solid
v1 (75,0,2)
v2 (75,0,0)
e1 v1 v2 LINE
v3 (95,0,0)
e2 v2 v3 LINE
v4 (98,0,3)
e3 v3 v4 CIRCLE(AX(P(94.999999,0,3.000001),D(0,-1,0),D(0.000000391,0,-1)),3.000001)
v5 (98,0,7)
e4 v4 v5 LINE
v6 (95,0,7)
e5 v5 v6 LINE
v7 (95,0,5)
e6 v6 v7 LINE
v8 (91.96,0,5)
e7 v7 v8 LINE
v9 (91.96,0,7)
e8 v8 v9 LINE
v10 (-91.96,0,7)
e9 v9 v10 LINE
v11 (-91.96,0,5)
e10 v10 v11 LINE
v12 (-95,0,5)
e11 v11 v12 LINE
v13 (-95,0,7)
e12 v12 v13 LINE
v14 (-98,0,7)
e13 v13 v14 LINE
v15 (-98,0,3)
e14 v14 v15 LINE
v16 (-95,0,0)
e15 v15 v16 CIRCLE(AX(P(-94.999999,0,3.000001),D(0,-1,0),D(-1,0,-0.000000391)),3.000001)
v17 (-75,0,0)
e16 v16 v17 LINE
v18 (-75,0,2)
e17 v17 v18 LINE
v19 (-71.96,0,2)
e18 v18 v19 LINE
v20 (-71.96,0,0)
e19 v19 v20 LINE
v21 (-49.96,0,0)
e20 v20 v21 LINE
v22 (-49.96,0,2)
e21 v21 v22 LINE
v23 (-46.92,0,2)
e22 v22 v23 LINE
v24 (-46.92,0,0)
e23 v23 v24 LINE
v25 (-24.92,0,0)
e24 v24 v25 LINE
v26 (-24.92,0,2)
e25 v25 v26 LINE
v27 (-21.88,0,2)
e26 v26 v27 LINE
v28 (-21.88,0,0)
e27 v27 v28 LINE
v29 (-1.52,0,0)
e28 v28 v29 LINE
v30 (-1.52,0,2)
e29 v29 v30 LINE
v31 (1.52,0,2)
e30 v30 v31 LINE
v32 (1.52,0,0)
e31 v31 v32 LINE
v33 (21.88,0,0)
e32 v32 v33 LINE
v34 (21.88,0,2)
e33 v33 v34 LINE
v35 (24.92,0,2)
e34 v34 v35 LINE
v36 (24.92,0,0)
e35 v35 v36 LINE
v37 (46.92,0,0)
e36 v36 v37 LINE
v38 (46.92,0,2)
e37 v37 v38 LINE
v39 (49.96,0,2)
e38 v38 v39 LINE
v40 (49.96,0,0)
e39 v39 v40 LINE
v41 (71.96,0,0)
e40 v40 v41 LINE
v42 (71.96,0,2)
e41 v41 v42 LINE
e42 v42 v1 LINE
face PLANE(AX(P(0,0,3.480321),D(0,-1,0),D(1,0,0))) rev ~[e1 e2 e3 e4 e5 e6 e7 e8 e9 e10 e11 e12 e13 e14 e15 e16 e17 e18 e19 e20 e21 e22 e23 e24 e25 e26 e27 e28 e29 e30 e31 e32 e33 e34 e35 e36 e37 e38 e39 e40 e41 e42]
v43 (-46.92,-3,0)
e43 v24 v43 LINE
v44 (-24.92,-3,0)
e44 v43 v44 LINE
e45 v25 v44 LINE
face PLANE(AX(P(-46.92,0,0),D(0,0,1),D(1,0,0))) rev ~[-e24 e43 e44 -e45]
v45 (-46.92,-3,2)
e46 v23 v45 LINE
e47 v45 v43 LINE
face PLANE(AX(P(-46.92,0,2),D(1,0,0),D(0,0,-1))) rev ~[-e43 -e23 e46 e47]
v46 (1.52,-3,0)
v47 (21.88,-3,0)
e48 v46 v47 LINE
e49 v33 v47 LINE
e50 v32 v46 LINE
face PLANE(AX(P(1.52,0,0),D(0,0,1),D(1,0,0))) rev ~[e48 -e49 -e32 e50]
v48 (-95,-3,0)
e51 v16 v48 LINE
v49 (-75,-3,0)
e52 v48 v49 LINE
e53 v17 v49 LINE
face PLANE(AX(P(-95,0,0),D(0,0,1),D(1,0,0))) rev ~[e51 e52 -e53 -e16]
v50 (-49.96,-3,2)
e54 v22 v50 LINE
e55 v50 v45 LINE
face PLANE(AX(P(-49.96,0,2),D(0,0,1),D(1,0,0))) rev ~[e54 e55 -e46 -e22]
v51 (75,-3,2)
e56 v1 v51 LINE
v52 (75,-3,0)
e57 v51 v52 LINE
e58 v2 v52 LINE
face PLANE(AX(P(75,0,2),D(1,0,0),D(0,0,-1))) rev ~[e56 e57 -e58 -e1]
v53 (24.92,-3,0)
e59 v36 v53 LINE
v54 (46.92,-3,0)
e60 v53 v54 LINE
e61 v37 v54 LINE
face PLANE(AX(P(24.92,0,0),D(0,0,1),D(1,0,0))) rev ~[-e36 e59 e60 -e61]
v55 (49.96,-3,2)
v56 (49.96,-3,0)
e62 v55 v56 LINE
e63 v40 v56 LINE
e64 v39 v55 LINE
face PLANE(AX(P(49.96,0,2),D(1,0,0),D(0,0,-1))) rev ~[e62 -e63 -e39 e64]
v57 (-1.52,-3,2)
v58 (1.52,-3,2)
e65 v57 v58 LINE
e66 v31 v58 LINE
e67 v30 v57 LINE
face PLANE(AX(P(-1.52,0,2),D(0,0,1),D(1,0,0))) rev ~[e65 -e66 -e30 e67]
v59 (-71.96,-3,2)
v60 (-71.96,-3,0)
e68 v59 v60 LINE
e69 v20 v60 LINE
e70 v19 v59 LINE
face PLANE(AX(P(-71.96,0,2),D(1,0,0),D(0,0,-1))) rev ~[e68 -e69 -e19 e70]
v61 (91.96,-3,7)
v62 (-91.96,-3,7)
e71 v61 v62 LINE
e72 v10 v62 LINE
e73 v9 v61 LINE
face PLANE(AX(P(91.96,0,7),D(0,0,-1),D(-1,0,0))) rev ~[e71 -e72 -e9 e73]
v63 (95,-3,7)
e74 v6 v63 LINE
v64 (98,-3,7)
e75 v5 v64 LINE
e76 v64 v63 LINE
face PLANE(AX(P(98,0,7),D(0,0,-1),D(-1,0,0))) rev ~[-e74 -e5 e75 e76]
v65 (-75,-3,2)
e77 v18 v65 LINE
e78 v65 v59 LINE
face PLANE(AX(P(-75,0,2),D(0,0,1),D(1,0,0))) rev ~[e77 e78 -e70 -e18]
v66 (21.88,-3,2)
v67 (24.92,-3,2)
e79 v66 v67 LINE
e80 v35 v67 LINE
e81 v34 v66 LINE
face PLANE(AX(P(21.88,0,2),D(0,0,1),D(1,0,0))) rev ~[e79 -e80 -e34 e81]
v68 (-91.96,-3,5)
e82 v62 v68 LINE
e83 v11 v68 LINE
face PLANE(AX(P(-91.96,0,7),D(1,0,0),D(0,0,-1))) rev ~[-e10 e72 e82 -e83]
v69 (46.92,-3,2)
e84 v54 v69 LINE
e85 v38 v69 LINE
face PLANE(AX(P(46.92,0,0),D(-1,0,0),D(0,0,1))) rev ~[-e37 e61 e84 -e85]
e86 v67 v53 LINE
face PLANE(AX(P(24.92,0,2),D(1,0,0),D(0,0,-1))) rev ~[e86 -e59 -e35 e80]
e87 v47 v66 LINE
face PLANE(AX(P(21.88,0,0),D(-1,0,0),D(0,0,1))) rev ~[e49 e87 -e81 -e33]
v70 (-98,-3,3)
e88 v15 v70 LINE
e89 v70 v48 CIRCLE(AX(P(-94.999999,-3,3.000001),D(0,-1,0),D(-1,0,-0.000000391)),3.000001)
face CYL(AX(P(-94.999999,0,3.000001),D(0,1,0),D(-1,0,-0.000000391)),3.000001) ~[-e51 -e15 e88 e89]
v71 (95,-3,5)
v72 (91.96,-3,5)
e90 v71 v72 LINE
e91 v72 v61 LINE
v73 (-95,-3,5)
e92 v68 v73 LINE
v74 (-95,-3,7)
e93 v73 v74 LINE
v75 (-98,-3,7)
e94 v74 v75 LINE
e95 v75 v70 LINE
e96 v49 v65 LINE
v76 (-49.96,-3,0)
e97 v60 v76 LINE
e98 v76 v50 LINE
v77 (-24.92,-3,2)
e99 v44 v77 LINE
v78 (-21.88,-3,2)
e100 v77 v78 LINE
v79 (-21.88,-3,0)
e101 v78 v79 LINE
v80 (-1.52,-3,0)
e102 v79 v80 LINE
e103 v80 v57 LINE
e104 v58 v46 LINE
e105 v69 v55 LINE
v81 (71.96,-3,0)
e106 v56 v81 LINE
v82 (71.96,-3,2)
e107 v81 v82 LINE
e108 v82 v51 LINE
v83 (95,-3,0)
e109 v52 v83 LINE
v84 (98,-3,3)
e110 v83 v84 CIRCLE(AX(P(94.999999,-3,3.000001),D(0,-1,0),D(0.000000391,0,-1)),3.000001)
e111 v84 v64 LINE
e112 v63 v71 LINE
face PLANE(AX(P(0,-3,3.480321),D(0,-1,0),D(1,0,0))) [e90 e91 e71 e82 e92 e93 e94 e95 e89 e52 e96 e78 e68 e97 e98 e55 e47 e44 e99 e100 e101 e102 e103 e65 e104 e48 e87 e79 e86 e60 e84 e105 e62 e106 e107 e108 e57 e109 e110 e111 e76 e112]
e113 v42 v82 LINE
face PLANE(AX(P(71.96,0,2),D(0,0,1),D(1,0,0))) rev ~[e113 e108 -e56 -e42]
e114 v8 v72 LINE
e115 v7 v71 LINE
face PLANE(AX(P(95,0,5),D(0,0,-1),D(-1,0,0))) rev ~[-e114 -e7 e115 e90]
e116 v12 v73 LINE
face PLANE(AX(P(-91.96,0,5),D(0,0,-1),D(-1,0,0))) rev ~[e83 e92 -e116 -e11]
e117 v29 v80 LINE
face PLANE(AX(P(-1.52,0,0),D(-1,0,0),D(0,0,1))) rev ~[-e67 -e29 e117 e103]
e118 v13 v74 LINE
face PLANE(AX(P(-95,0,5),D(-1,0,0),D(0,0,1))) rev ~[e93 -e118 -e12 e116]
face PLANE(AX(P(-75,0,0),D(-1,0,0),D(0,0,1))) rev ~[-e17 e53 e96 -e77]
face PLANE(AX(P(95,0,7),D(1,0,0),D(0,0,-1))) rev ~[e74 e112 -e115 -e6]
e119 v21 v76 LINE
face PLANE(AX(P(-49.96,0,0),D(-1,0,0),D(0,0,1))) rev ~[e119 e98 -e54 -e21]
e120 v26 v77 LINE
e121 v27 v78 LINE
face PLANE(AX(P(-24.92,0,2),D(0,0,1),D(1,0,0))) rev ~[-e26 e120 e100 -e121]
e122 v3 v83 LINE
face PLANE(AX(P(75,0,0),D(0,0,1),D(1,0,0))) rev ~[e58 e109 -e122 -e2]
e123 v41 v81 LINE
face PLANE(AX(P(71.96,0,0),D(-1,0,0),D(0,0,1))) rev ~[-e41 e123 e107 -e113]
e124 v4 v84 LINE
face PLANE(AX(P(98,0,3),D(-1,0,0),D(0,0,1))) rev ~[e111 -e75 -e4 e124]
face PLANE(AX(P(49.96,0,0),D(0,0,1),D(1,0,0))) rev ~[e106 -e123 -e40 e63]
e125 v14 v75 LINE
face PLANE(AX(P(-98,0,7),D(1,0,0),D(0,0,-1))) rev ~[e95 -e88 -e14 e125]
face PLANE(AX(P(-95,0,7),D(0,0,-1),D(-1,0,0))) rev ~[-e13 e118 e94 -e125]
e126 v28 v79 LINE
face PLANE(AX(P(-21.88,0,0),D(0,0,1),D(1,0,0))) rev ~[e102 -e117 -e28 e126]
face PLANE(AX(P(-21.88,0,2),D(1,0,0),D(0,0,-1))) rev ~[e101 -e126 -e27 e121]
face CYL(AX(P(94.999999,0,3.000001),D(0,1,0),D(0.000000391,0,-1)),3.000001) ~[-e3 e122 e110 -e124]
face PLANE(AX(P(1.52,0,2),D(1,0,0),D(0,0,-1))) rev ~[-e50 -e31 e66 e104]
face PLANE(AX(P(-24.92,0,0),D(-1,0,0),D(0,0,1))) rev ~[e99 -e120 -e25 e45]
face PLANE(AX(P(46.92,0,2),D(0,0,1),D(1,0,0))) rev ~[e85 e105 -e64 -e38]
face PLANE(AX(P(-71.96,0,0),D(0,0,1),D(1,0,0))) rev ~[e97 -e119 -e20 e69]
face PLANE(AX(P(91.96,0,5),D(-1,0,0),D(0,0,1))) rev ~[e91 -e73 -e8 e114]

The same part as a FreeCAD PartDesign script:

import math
import FreeCAD as App
import Part
import Sketcher
Q = App.Units.Quantity

doc = App.newDocument("Part")
body = doc.addObject("PartDesign::Body", "Body")

# Sketch on XZ plane
sketch1 = body.newObject("Sketcher::SketchObject", "Sketch")
sketch1.AttachmentSupport = (doc.getObject("XZ_Plane"), [""])
sketch1.MapMode = "FlatFace"
sketch1.addGeometry(Part.LineSegment(App.Vector(-71.96, 2, 0), App.Vector(-71.96, 0, 0)), False)
sketch1.addGeometry(Part.LineSegment(App.Vector(-71.96, 0, 0), App.Vector(-49.96, 0, 0)), False)
sketch1.addGeometry(Part.LineSegment(App.Vector(-49.96, 0, 0), App.Vector(-49.96, 2, 0)), False)
sketch1.addGeometry(Part.LineSegment(App.Vector(-49.96, 2, 0), App.Vector(-46.92, 2, 0)), False)
sketch1.addGeometry(Part.LineSegment(App.Vector(-46.92, 2, 0), App.Vector(-46.92, 0, 0)), False)
sketch1.addGeometry(Part.LineSegment(App.Vector(-46.92, 0, 0), App.Vector(-24.92, 0, 0)), False)
sketch1.addGeometry(Part.LineSegment(App.Vector(-24.92, 0, 0), App.Vector(-24.92, 2, 0)), False)
sketch1.addGeometry(Part.LineSegment(App.Vector(-24.92, 2, 0), App.Vector(-21.88, 2, 0)), False)
sketch1.addGeometry(Part.LineSegment(App.Vector(-21.88, 2, 0), App.Vector(-21.88, 0, 0)), False)
sketch1.addGeometry(Part.LineSegment(App.Vector(-21.88, 0, 0), App.Vector(-1.52, 0, 0)), False)
sketch1.addGeometry(Part.LineSegment(App.Vector(-1.52, 0, 0), App.Vector(-1.52, 2, 0)), False)
sketch1.addGeometry(Part.LineSegment(App.Vector(-1.52, 2, 0), App.Vector(1.52, 2, 0)), False)
sketch1.addGeometry(Part.LineSegment(App.Vector(1.52, 2, 0), App.Vector(1.52, 0, 0)), False)
sketch1.addGeometry(Part.LineSegment(App.Vector(1.52, 0, 0), App.Vector(21.88, 0, 0)), False)
sketch1.addGeometry(Part.LineSegment(App.Vector(21.88, 0, 0), App.Vector(21.88, 2, 0)), False)
sketch1.addGeometry(Part.LineSegment(App.Vector(21.88, 2, 0), App.Vector(24.92, 2, 0)), False)
sketch1.addGeometry(Part.LineSegment(App.Vector(24.92, 2, 0), App.Vector(24.92, 0, 0)), False)
sketch1.addGeometry(Part.LineSegment(App.Vector(24.92, 0, 0), App.Vector(46.92, 0, 0)), False)
sketch1.addGeometry(Part.LineSegment(App.Vector(46.92, 0, 0), App.Vector(46.92, 2, 0)), False)
sketch1.addGeometry(Part.LineSegment(App.Vector(46.92, 2, 0), App.Vector(49.96, 2, 0)), False)
sketch1.addGeometry(Part.LineSegment(App.Vector(49.96, 2, 0), App.Vector(49.96, 0, 0)), False)
sketch1.addGeometry(Part.LineSegment(App.Vector(49.96, 0, 0), App.Vector(71.96, 0, 0)), False)
sketch1.addGeometry(Part.LineSegment(App.Vector(71.96, 0, 0), App.Vector(71.96, 2, 0)), False)
sketch1.addGeometry(Part.LineSegment(App.Vector(71.96, 2, 0), App.Vector(75, 2, 0)), False)
sketch1.addGeometry(Part.LineSegment(App.Vector(75, 2, 0), App.Vector(75, 0, 0)), False)
sketch1.addGeometry(Part.LineSegment(App.Vector(75, 0, 0), App.Vector(95, 0, 0)), False)
sketch1.addGeometry(Part.ArcOfCircle(Part.Circle(App.Vector(94.999999, 3.000001, 0), App.Vector(0, 0, 1), 3.000001), math.radians(-89.999978), math.radians(-0.000022)), False)
sketch1.addGeometry(Part.LineSegment(App.Vector(98, 3, 0), App.Vector(98, 7, 0)), False)
sketch1.addGeometry(Part.LineSegment(App.Vector(98, 7, 0), App.Vector(95, 7, 0)), False)
sketch1.addGeometry(Part.LineSegment(App.Vector(95, 7, 0), App.Vector(95, 5, 0)), False)
sketch1.addGeometry(Part.LineSegment(App.Vector(95, 5, 0), App.Vector(91.96, 5, 0)), False)
sketch1.addGeometry(Part.LineSegment(App.Vector(91.96, 5, 0), App.Vector(91.96, 7, 0)), False)
sketch1.addGeometry(Part.LineSegment(App.Vector(91.96, 7, 0), App.Vector(-91.96, 7, 0)), False)
sketch1.addGeometry(Part.LineSegment(App.Vector(-91.96, 7, 0), App.Vector(-91.96, 5, 0)), False)
sketch1.addGeometry(Part.LineSegment(App.Vector(-91.96, 5, 0), App.Vector(-95, 5, 0)), False)
sketch1.addGeometry(Part.LineSegment(App.Vector(-95, 5, 0), App.Vector(-95, 7, 0)), False)
sketch1.addGeometry(Part.LineSegment(App.Vector(-95, 7, 0), App.Vector(-98, 7, 0)), False)
sketch1.addGeometry(Part.LineSegment(App.Vector(-98, 7, 0), App.Vector(-98, 3, 0)), False)
sketch1.addGeometry(Part.ArcOfCircle(Part.Circle(App.Vector(-94.999999, 3.000001, 0), App.Vector(0, 0, 1), 3.000001), math.radians(-179.999978), math.radians(-90.000022)), False)
sketch1.addGeometry(Part.LineSegment(App.Vector(-95, 0, 0), App.Vector(-75, 0, 0)), False)
sketch1.addGeometry(Part.LineSegment(App.Vector(-75, 0, 0), App.Vector(-75, 2, 0)), False)
sketch1.addGeometry(Part.LineSegment(App.Vector(-75, 2, 0), App.Vector(-71.96, 2, 0)), False)
sketch1.addConstraint(Sketcher.Constraint("Coincident", 0, 2, 1, 1))
sketch1.addConstraint(Sketcher.Constraint("Coincident", 1, 2, 2, 1))
sketch1.addConstraint(Sketcher.Constraint("Coincident", 2, 2, 3, 1))
sketch1.addConstraint(Sketcher.Constraint("Coincident", 3, 2, 4, 1))
sketch1.addConstraint(Sketcher.Constraint("Coincident", 4, 2, 5, 1))
sketch1.addConstraint(Sketcher.Constraint("Coincident", 5, 2, 6, 1))
sketch1.addConstraint(Sketcher.Constraint("Coincident", 6, 2, 7, 1))
sketch1.addConstraint(Sketcher.Constraint("Coincident", 7, 2, 8, 1))
sketch1.addConstraint(Sketcher.Constraint("Coincident", 8, 2, 9, 1))
sketch1.addConstraint(Sketcher.Constraint("Coincident", 9, 2, 10, 1))
sketch1.addConstraint(Sketcher.Constraint("Coincident", 10, 2, 11, 1))
sketch1.addConstraint(Sketcher.Constraint("Coincident", 11, 2, 12, 1))
sketch1.addConstraint(Sketcher.Constraint("Coincident", 12, 2, 13, 1))
sketch1.addConstraint(Sketcher.Constraint("Coincident", 13, 2, 14, 1))
sketch1.addConstraint(Sketcher.Constraint("Coincident", 14, 2, 15, 1))
sketch1.addConstraint(Sketcher.Constraint("Coincident", 15, 2, 16, 1))
sketch1.addConstraint(Sketcher.Constraint("Coincident", 16, 2, 17, 1))
sketch1.addConstraint(Sketcher.Constraint("Coincident", 17, 2, 18, 1))
sketch1.addConstraint(Sketcher.Constraint("Coincident", 18, 2, 19, 1))
sketch1.addConstraint(Sketcher.Constraint("Coincident", 19, 2, 20, 1))
sketch1.addConstraint(Sketcher.Constraint("Coincident", 20, 2, 21, 1))
sketch1.addConstraint(Sketcher.Constraint("Coincident", 21, 2, 22, 1))
sketch1.addConstraint(Sketcher.Constraint("Coincident", 22, 2, 23, 1))
sketch1.addConstraint(Sketcher.Constraint("Coincident", 23, 2, 24, 1))
sketch1.addConstraint(Sketcher.Constraint("Coincident", 24, 2, 25, 1))
sketch1.addConstraint(Sketcher.Constraint("Tangent", 25, 2, 26, 1))
sketch1.addConstraint(Sketcher.Constraint("Tangent", 26, 2, 27, 1))
sketch1.addConstraint(Sketcher.Constraint("Coincident", 27, 2, 28, 1))
sketch1.addConstraint(Sketcher.Constraint("Coincident", 28, 2, 29, 1))
sketch1.addConstraint(Sketcher.Constraint("Coincident", 29, 2, 30, 1))
sketch1.addConstraint(Sketcher.Constraint("Coincident", 30, 2, 31, 1))
sketch1.addConstraint(Sketcher.Constraint("Coincident", 31, 2, 32, 1))
sketch1.addConstraint(Sketcher.Constraint("Coincident", 32, 2, 33, 1))
sketch1.addConstraint(Sketcher.Constraint("Coincident", 33, 2, 34, 1))
sketch1.addConstraint(Sketcher.Constraint("Coincident", 34, 2, 35, 1))
sketch1.addConstraint(Sketcher.Constraint("Coincident", 35, 2, 36, 1))
sketch1.addConstraint(Sketcher.Constraint("Coincident", 36, 2, 37, 1))
sketch1.addConstraint(Sketcher.Constraint("Tangent", 37, 2, 38, 1))
sketch1.addConstraint(Sketcher.Constraint("Tangent", 38, 2, 39, 1))
sketch1.addConstraint(Sketcher.Constraint("Coincident", 39, 2, 40, 1))
sketch1.addConstraint(Sketcher.Constraint("Coincident", 40, 2, 41, 1))
sketch1.addConstraint(Sketcher.Constraint("Coincident", 41, 2, 0, 1))
sketch1.addConstraint(Sketcher.Constraint("Vertical", 0))
sketch1.addConstraint(Sketcher.Constraint("Horizontal", 1))
sketch1.addConstraint(Sketcher.Constraint("Vertical", 2))
sketch1.addConstraint(Sketcher.Constraint("Horizontal", 3))
sketch1.addConstraint(Sketcher.Constraint("Vertical", 4))
sketch1.addConstraint(Sketcher.Constraint("Horizontal", 5))
sketch1.addConstraint(Sketcher.Constraint("Vertical", 6))
sketch1.addConstraint(Sketcher.Constraint("Horizontal", 7))
sketch1.addConstraint(Sketcher.Constraint("Vertical", 8))
sketch1.addConstraint(Sketcher.Constraint("Horizontal", 9))
sketch1.addConstraint(Sketcher.Constraint("Vertical", 10))
sketch1.addConstraint(Sketcher.Constraint("Horizontal", 11))
sketch1.addConstraint(Sketcher.Constraint("Vertical", 12))
sketch1.addConstraint(Sketcher.Constraint("Horizontal", 13))
sketch1.addConstraint(Sketcher.Constraint("Vertical", 14))
sketch1.addConstraint(Sketcher.Constraint("Horizontal", 15))
sketch1.addConstraint(Sketcher.Constraint("Vertical", 16))
sketch1.addConstraint(Sketcher.Constraint("Horizontal", 17))
sketch1.addConstraint(Sketcher.Constraint("Vertical", 18))
sketch1.addConstraint(Sketcher.Constraint("Horizontal", 19))
sketch1.addConstraint(Sketcher.Constraint("Vertical", 20))
sketch1.addConstraint(Sketcher.Constraint("Horizontal", 21))
sketch1.addConstraint(Sketcher.Constraint("Vertical", 22))
sketch1.addConstraint(Sketcher.Constraint("Horizontal", 23))
sketch1.addConstraint(Sketcher.Constraint("Vertical", 24))
sketch1.addConstraint(Sketcher.Constraint("Horizontal", 25))
sketch1.addConstraint(Sketcher.Constraint("Vertical", 27))
sketch1.addConstraint(Sketcher.Constraint("Horizontal", 28))
sketch1.addConstraint(Sketcher.Constraint("Vertical", 29))
sketch1.addConstraint(Sketcher.Constraint("Horizontal", 30))
sketch1.addConstraint(Sketcher.Constraint("Vertical", 31))
sketch1.addConstraint(Sketcher.Constraint("Horizontal", 32))
sketch1.addConstraint(Sketcher.Constraint("Vertical", 33))
sketch1.addConstraint(Sketcher.Constraint("Horizontal", 34))
sketch1.addConstraint(Sketcher.Constraint("Vertical", 35))
sketch1.addConstraint(Sketcher.Constraint("Horizontal", 36))
sketch1.addConstraint(Sketcher.Constraint("Vertical", 37))
sketch1.addConstraint(Sketcher.Constraint("Horizontal", 39))
sketch1.addConstraint(Sketcher.Constraint("Vertical", 40))
sketch1.addConstraint(Sketcher.Constraint("Horizontal", 41))
sketch1.addConstraint(Sketcher.Constraint("Equal", 26, 38))
sketch1.addConstraint(Sketcher.Constraint("Symmetric", 9, 2, 12, 2, -1, 1))
sketch1.addConstraint(Sketcher.Constraint("Symmetric", 5, 2, 16, 2, -1, 1))
sketch1.addConstraint(Sketcher.Constraint("Symmetric", 1, 2, 20, 2, -1, 1))
sketch1.addConstraint(Sketcher.Constraint("Symmetric", 25, 2, 38, 2, -1, 1))
sketch1.addConstraint(Sketcher.Constraint("Symmetric", 8, 2, 13, 2, -2))
sketch1.addConstraint(Sketcher.Constraint("Symmetric", 4, 2, 17, 2, -2))
sketch1.addConstraint(Sketcher.Constraint("Symmetric", 0, 2, 21, 2, -2))
sketch1.addConstraint(Sketcher.Constraint("Symmetric", 30, 2, 33, 2, -2))
sketch1.addConstraint(Sketcher.Constraint("Symmetric", 28, 2, 35, 2, -2))
sketch1.addConstraint(Sketcher.Constraint("Symmetric", 24, 2, 39, 2, -2))
sketch1.addConstraint(Sketcher.Constraint("Horizontal", 3, 2, 6, 2))
sketch1.addConstraint(Sketcher.Constraint("Horizontal", 7, 2, 10, 2))
sketch1.addConstraint(Sketcher.Constraint("Horizontal", 11, 2, 14, 2))
sketch1.addConstraint(Sketcher.Constraint("Horizontal", 15, 2, 18, 2))
sketch1.addConstraint(Sketcher.Constraint("Horizontal", 19, 2, 22, 2))
sketch1.addConstraint(Sketcher.Constraint("Horizontal", 28, 2, 31, 2))
sketch1.addConstraint(Sketcher.Constraint("Horizontal", 23, 2, 40, 2))
sketch1.addConstraint(Sketcher.Constraint("Vertical", 25, 2, 28, 2))
sketch1.addConstraint(Sketcher.Constraint("Equal", 1, 5))
sketch1.addConstraint(Sketcher.Constraint("Equal", 3, 7))
sketch1.addConstraint(Sketcher.Constraint("Equal", 7, 11))
sketch1.addConstraint(Sketcher.Constraint("Equal", 19, 23))
sketch1.addConstraint(Sketcher.Constraint("Equal", 23, 30))
sketch1.addConstraint(Sketcher.Constraint("Equal", 24, 29))
sketch1.addConstraint(Sketcher.Constraint("Radius", 26, Q("3.000001 mm")))
sketch1.addConstraint(Sketcher.Constraint("DistanceX", 1, 1, 1, 2, Q("22 mm")))
sketch1.addConstraint(Sketcher.Constraint("DistanceX", 25, 1, 25, 2, Q("20 mm")))
sketch1.addConstraint(Sketcher.Constraint("DistanceY", 0, 2, 0, 1, Q("2 mm")))
sketch1.addConstraint(Sketcher.Constraint("DistanceY", 27, 1, 27, 2, Q("4 mm")))
sketch1.addConstraint(Sketcher.Constraint("DistanceX", -1, 1, 26, 3, Q("94.999999 mm")))
sketch1.addConstraint(Sketcher.Constraint("DistanceX", 3, 1, 3, 2, Q("3.04 mm")))
pad1 = body.newObject("PartDesign::Pad", "Pad")
pad1.Profile = sketch1
pad1.Length = 3

doc.recompute()
